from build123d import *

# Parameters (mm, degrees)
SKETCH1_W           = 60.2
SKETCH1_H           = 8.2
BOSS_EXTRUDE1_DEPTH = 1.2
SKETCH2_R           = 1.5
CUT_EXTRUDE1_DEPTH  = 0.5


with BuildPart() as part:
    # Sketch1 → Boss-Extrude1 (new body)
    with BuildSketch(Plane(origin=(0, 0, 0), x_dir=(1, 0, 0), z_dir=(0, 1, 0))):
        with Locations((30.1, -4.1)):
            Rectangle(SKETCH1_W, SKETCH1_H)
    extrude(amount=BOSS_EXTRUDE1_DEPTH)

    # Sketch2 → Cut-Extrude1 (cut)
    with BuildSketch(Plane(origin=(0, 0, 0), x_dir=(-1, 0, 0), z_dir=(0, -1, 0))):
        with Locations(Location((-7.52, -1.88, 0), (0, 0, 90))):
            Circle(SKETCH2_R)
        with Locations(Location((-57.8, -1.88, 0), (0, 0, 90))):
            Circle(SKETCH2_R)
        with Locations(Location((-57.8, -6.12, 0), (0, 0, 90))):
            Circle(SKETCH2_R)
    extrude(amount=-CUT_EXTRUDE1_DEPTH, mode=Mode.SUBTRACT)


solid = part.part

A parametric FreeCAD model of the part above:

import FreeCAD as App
import Part
import Sketcher

V = App.Vector
Q = App.Units.Quantity

doc = App.newDocument("Part")
params = doc.addObject("Spreadsheet::Sheet", "Params")
for row, (alias, value) in enumerate([
    ("sketch1_width", "60.2 mm"),
    ("sketch1_height", "8.2 mm"),
    ("pad1_length", "1.2 mm"),
    ("sketch2_diameter", "3 mm"),
    ("pocket1_length", "0.5 mm"),
], start=1):
    params.set(f"A{row}", alias)
    params.set(f"B{row}", "=" + value)
    params.setAlias(f"B{row}", alias)

body = doc.addObject("PartDesign::Body", "Body")

# Sketch on XZ plane
sketch1 = body.newObject("Sketcher::SketchObject", "Sketch")
sketch1.AttachmentSupport = (doc.getObject("XZ_Plane"), [""])
sketch1.MapMode = "FlatFace"
sketch1.addGeometry(Part.LineSegment(V(0, 0, 0), V(0, 8, 0)), False)
sketch1.addGeometry(Part.LineSegment(V(0, 8, 0), V(60, 8, 0)), False)
sketch1.addGeometry(Part.LineSegment(V(60, 8, 0), V(60, 0, 0)), False)
sketch1.addGeometry(Part.LineSegment(V(60, 0, 0), V(0, 0, 0)), False)
sketch1.addConstraint(Sketcher.Constraint("Coincident", 0, 2, 1, 1))
sketch1.addConstraint(Sketcher.Constraint("Coincident", 1, 2, 2, 1))
sketch1.addConstraint(Sketcher.Constraint("Coincident", 2, 2, 3, 1))
sketch1.addConstraint(Sketcher.Constraint("Coincident", 3, 2, 0, 1))
sketch1.addConstraint(Sketcher.Constraint("Vertical", 0))
sketch1.addConstraint(Sketcher.Constraint("Horizontal", 1))
sketch1.addConstraint(Sketcher.Constraint("Vertical", 2))
sketch1.addConstraint(Sketcher.Constraint("Horizontal", 3))
sketch1.addConstraint(Sketcher.Constraint("Coincident", 3, 2, -1, 1))
sketch1.addConstraint(Sketcher.Constraint("DistanceX", 1, 1, 1, 2, Q("60.2 mm")))
sketch1.addConstraint(Sketcher.Constraint("DistanceY", 0, 1, 0, 2, Q("8.2 mm")))
sketch1.setExpression("Constraints[9]", "Params.sketch1_width")
sketch1.setExpression("Constraints[10]", "Params.sketch1_height")
pad1 = body.newObject("PartDesign::Pad", "Pad")
pad1.Profile = sketch1
pad1.setExpression("Length", "Params.pad1_length")
pad1.Reversed = True

# Sketch on XZ plane
sketch2 = body.newObject("Sketcher::SketchObject", "Sketch001")
sketch2.AttachmentSupport = (doc.getObject("XZ_Plane"), [""])
sketch2.MapMode = "FlatFace"
sketch2.addGeometry(Part.Circle(V(7.5, 1.9, 0), V(0, 0, 1), 1.5), False)
sketch2.addGeometry(Part.Circle(V(57.8, 1.9, 0), V(0, 0, 1), 1.5), False)
sketch2.addGeometry(Part.Circle(V(57.8, 6.1, 0), V(0, 0, 1), 1.5), False)
sketch2.addConstraint(Sketcher.Constraint("Equal", 0, 1))
sketch2.addConstraint(Sketcher.Constraint("Equal", 1, 2))
sketch2.addConstraint(Sketcher.Constraint("Horizontal", 0, 3, 1, 3))
sketch2.addConstraint(Sketcher.Constraint("Vertical", 1, 3, 2, 3))
sketch2.addConstraint(Sketcher.Constraint("Diameter", 0, Q("3 mm")))
sketch2.addConstraint(Sketcher.Constraint("DistanceX", -1, 1, 1, 3, Q("57.8 mm")))
sketch2.addConstraint(Sketcher.Constraint("DistanceX", -1, 1, 0, 3, Q("7.52 mm")))
sketch2.addConstraint(Sketcher.Constraint("DistanceY", -1, 1, 0, 3, Q("1.88 mm")))
sketch2.addConstraint(Sketcher.Constraint("DistanceY", -1, 1, 2, 3, Q("6.12 mm")))
sketch2.setExpression("Constraints[4]", "Params.sketch2_diameter")
pocket1 = body.newObject("PartDesign::Pocket", "Pocket")
pocket1.Profile = sketch2
pocket1.setExpression("Length", "Params.pocket1_length")

doc.recompute()
